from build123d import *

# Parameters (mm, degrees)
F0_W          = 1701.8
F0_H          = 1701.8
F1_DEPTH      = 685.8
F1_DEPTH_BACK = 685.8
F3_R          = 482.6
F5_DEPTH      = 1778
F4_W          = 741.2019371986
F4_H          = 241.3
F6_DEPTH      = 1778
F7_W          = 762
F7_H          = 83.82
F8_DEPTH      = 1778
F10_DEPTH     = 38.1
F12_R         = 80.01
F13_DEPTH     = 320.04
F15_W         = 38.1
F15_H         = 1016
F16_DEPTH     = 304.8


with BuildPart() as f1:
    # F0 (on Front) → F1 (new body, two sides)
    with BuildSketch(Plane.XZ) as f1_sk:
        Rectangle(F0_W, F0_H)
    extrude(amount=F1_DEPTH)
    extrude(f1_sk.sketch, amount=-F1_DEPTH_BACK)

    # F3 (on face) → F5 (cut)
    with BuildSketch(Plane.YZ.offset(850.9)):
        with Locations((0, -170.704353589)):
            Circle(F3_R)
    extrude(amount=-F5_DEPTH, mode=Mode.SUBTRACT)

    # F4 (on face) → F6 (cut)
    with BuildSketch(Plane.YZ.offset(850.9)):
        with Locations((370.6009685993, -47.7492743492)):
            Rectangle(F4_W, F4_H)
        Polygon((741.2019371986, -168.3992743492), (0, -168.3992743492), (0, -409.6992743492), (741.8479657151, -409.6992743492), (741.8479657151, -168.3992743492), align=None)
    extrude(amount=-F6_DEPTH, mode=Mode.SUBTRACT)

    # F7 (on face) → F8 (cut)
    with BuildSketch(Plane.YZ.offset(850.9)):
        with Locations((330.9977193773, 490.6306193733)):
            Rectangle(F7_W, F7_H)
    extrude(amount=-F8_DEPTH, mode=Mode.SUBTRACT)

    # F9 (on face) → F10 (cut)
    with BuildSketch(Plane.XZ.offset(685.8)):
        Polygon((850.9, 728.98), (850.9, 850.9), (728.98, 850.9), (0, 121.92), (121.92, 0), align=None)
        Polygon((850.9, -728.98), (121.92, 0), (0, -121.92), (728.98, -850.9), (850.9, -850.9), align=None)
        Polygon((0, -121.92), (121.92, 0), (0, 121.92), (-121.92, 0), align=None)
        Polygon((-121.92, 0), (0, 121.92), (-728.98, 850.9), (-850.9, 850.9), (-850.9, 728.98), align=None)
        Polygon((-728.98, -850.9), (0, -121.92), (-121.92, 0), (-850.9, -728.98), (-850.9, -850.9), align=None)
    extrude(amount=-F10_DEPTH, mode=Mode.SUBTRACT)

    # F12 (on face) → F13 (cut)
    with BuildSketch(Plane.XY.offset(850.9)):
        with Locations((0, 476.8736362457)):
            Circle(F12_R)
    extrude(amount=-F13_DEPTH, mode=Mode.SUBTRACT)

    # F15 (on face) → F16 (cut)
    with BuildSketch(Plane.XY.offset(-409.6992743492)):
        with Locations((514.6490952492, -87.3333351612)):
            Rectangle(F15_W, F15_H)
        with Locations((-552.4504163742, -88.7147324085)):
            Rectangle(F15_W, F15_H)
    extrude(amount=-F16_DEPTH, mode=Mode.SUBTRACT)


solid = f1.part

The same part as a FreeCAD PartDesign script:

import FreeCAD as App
import Part
import Sketcher
from FreeCAD import Vector
Q = App.Units.Quantity


def add_polygon(sketch, points):
    """Adds a closed chain of lines whose ends are joined by coincident constraints."""
    first, n = sketch.GeometryCount, len(points)
    for a, b in zip(points, points[1:] + points[:1]):
        sketch.addGeometry(Part.LineSegment(App.Vector(*a, 0), App.Vector(*b, 0)), False)
    for i in range(n):
        sketch.addConstraint(Sketcher.Constraint("Coincident", first + i, 2, first + (i + 1) % n, 1))

doc = App.newDocument("Part")
params = doc.addObject("Spreadsheet::Sheet", "Params")
for row, (alias, value) in enumerate([
    ("sketch1_width", "67 in"),
    ("pad1_length", "27 in"),
    ("pad1_length2", "27 in"),
    ("sketch2_diameter", "38 in"),
    ("pocket1_length", "70 in"),
    ("sketch3_height", "19 in"),
    ("pocket2_length", "70 in"),
    ("sketch4_width", "30 in"),
    ("sketch4_height", "3.3 in"),
    ("pocket3_length", "70 in"),
    ("sketch5_width", "4.8 in"),
    ("pocket4_length", "1.5 in"),
    ("sketch6_diameter", "6.3 in"),
    ("pocket5_length", "12.6 in"),
    ("sketch7_height", "40 in"),
    ("sketch7_width", "1.5 in"),
    ("pocket6_length", "12 in"),
], start=1):
    params.set(f"A{row}", alias)
    params.set(f"B{row}", "=" + value)
    params.setAlias(f"B{row}", alias)

body = doc.addObject("PartDesign::Body", "Body")

sketch1 = body.newObject("Sketcher::SketchObject", "Sketch")
sketch1.AttachmentSupport = (doc.getObject("XZ_Plane"), [""])
sketch1.MapMode = "FlatFace"
add_polygon(sketch1, [(-850.9, 850.9), (-850.9, -850.9), (850.9, -850.9), (850.9, 850.9)])
sketch1.addConstraint([
    Sketcher.Constraint("Vertical", 0),
    Sketcher.Constraint("Horizontal", 1),
    Sketcher.Constraint("Vertical", 2),
    Sketcher.Constraint("Horizontal", 3),
    Sketcher.Constraint("Symmetric", 0, 2, 2, 2, -1, 1),
    Sketcher.Constraint("Equal", 3, 0),
    Sketcher.Constraint("DistanceX", 1, 1, 1, 2, Q("67 in")),
])
sketch1.setExpression("Constraints[10]", "Params.sketch1_width")
pad1 = body.newObject("PartDesign::Pad", "Pad")
pad1.Profile = sketch1
pad1.Type = "TwoLengths"
pad1.setExpression("Length", "Params.pad1_length")
pad1.setExpression("Length2", "Params.pad1_length2")

sketch2 = body.newObject("Sketcher::SketchObject", "Sketch001")
sketch2.AttachmentSupport = (doc.getObject("YZ_Plane"), [""])
sketch2.MapMode = "FlatFace"
sketch2.AttachmentOffset = App.Placement(Vector(0, 0, 33.5 * 25.4), App.Rotation())
sketch2.addGeometry(Part.Circle(Vector(0, -170.704354, 0), Vector(0, 0, 1), 482.6), False)
sketch2.addConstraint([
    Sketcher.Constraint("PointOnObject", 0, 3, -2),
    Sketcher.Constraint("Diameter", 0, Q("38 in")),
    Sketcher.Constraint("DistanceY", 0, 3, -1, 1, Q("170.704354 mm")),
])
sketch2.setExpression("Constraints[1]", "Params.sketch2_diameter")
pocket1 = body.newObject("PartDesign::Pocket", "Pocket")
pocket1.Profile = sketch2
pocket1.setExpression("Length", "Params.pocket1_length")

sketch3 = body.newObject("Sketcher::SketchObject", "Sketch002")
sketch3.AttachmentSupport = (doc.getObject("YZ_Plane"), [""])
sketch3.MapMode = "FlatFace"
sketch3.AttachmentOffset = App.Placement(Vector(0, 0, 33.5 * 25.4), App.Rotation())
add_polygon(sketch3, [(0, 72.900726), (0, -409.699274), (741.847966, -409.699274), (741.847966, -168.399274), (741.201937, -168.399274), (741.201937, 72.900726)])
sketch3.addConstraint([
    Sketcher.Constraint("Vertical", 0),
    Sketcher.Constraint("Horizontal", 1),
    Sketcher.Constraint("Vertical", 2),
    Sketcher.Constraint("Horizontal", 3),
    Sketcher.Constraint("Vertical", 4),
    Sketcher.Constraint("Horizontal", 5),
    Sketcher.Constraint("PointOnObject", 0, 2, -2),
    Sketcher.Constraint("Equal", 2, 4),
    Sketcher.Constraint("DistanceY", 0, 2, 0, 1, Q("19 in")),
    Sketcher.Constraint("DistanceX", 3, 2, 3, 1, Q("0.646029 mm")),
    Sketcher.Constraint("DistanceX", 1, 1, 1, 2, Q("741.847966 mm")),
    Sketcher.Constraint("DistanceY", 0, 2, -1, 1, Q("409.699274 mm")),
])
sketch3.setExpression("Constraints[14]", "Params.sketch3_height")
pocket2 = body.newObject("PartDesign::Pocket", "Pocket001")
pocket2.Profile = sketch3
pocket2.setExpression("Length", "Params.pocket2_length")

sketch4 = body.newObject("Sketcher::SketchObject", "Sketch003")
sketch4.AttachmentSupport = (doc.getObject("YZ_Plane"), [""])
sketch4.MapMode = "FlatFace"
sketch4.AttachmentOffset = App.Placement(Vector(0, 0, 33.5 * 25.4), App.Rotation())
add_polygon(sketch4, [(-50.002281, 532.540619), (-50.002281, 448.720619), (711.997719, 448.720619), (711.997719, 532.540619)])
sketch4.addConstraint([
    Sketcher.Constraint("Vertical", 0),
    Sketcher.Constraint("Horizontal", 1),
    Sketcher.Constraint("Vertical", 2),
    Sketcher.Constraint("Horizontal", 3),
    Sketcher.Constraint("DistanceX", 1, 1, 1, 2, Q("30 in")),
    Sketcher.Constraint("DistanceY", 0, 2, 0, 1, Q("3.3 in")),
    Sketcher.Constraint("DistanceX", 0, 2, -1, 1, Q("50.002281 mm")),
    Sketcher.Constraint("DistanceY", -1, 1, 0, 2, Q("448.720619 mm")),
])
sketch4.setExpression("Constraints[8]", "Params.sketch4_width")
sketch4.setExpression("Constraints[9]", "Params.sketch4_height")
pocket3 = body.newObject("PartDesign::Pocket", "Pocket002")
pocket3.Profile = sketch4
pocket3.setExpression("Length", "Params.pocket3_length")

sketch5 = body.newObject("Sketcher::SketchObject", "Sketch004")
sketch5.AttachmentSupport = (doc.getObject("XZ_Plane"), [""])
sketch5.MapMode = "FlatFace"
sketch5.AttachmentOffset = App.Placement(Vector(0, 0, 27 * 25.4), App.Rotation())
add_polygon(sketch5, [(850.9, 728.98), (850.9, 850.9), (728.98, 850.9), (0, 121.92), (-728.98, 850.9), (-850.9, 850.9), (-850.9, 728.98), (-121.92, 0), (-850.9, -728.98), (-850.9, -850.9), (-728.98, -850.9), (0, -121.92), (728.98, -850.9), (850.9, -850.9), (850.9, -728.98), (121.92, 0)])
sketch5.addConstraint([
    Sketcher.Constraint("Vertical", 0),
    Sketcher.Constraint("Horizontal", 1),
    Sketcher.Constraint("Horizontal", 4),
    Sketcher.Constraint("Vertical", 5),
    Sketcher.Constraint("Vertical", 8),
    Sketcher.Constraint("Horizontal", 9),
    Sketcher.Constraint("Horizontal", 12),
    Sketcher.Constraint("Vertical", 13),
    Sketcher.Constraint("Symmetric", 0, 2, 8, 2, -1, 1),
    Sketcher.Constraint("Symmetric", 2, 2, 10, 2, -1, 1),
    Sketcher.Constraint("Symmetric", 3, 2, 11, 2, -1, 1),
    Sketcher.Constraint("Symmetric", 5, 2, 13, 2, -1, 1),
    Sketcher.Constraint("Symmetric", 6, 2, 14, 2, -1, 1),
    Sketcher.Constraint("Symmetric", 1, 2, 3, 2, -2),
    Sketcher.Constraint("Symmetric", 7, 2, 13, 2, -2),
    Sketcher.Constraint("PointOnObject", 2, 2, -2),
    Sketcher.Constraint("PointOnObject", 6, 2, -1),
    Sketcher.Constraint("Perpendicular", 2, 3),
    Sketcher.Constraint("Parallel", 3, 6),
    Sketcher.Constraint("Parallel", 7, 10),
    Sketcher.Constraint("Perpendicular", 14, 15),
    Sketcher.Constraint("Equal", 12, 0),
    Sketcher.Constraint("Equal", 3, 6),
    Sketcher.Constraint("DistanceX", 1, 2, 1, 1, Q("4.8 in")),
    Sketcher.Constraint("DistanceX", 4, 2, 0, 2, Q("67 in")),
])
sketch5.setExpression("Constraints[39]", "Params.sketch5_width")
pocket4 = body.newObject("PartDesign::Pocket", "Pocket003")
pocket4.Profile = sketch5
pocket4.setExpression("Length", "Params.pocket4_length")

sketch6 = body.newObject("Sketcher::SketchObject", "Sketch005")
sketch6.AttachmentSupport = (doc.getObject("XY_Plane"), [""])
sketch6.MapMode = "FlatFace"
sketch6.AttachmentOffset = App.Placement(Vector(0, 0, 33.5 * 25.4), App.Rotation())
sketch6.addGeometry(Part.Circle(Vector(0, 476.873636, 0), Vector(0, 0, 1), 80.01), False)
sketch6.addConstraint([
    Sketcher.Constraint("PointOnObject", 0, 3, -2),
    Sketcher.Constraint("Diameter", 0, Q("6.3 in")),
    Sketcher.Constraint("DistanceY", -1, 1, 0, 3, Q("476.873636 mm")),
])
sketch6.setExpression("Constraints[1]", "Params.sketch6_diameter")
pocket5 = body.newObject("PartDesign::Pocket", "Pocket004")
pocket5.Profile = sketch6
pocket5.setExpression("Length", "Params.pocket5_length")

sketch7 = body.newObject("Sketcher::SketchObject", "Sketch006")
sketch7.AttachmentSupport = (doc.getObject("XY_Plane"), [""])
sketch7.MapMode = "FlatFace"
sketch7.AttachmentOffset = App.Placement(Vector(0, 0, -409.699274), App.Rotation())
add_polygon(sketch7, [(495.599095, 420.666665), (495.599095, -595.333335), (533.699095, -595.333335), (533.699095, 420.666665)])
add_polygon(sketch7, [(-571.500416, 419.285268), (-571.500416, -596.714732), (-533.400416, -596.714732), (-533.400416, 419.285268)])
sketch7.addConstraint([
    Sketcher.Constraint("Vertical", 0),
    Sketcher.Constraint("Horizontal", 1),
    Sketcher.Constraint("Vertical", 2),
    Sketcher.Constraint("Horizontal", 3),
    Sketcher.Constraint("Vertical", 4),
    Sketcher.Constraint("Horizontal", 5),
    Sketcher.Constraint("Vertical", 6),
    Sketcher.Constraint("Horizontal", 7),
    Sketcher.Constraint("Equal", 3, 5),
    Sketcher.Constraint("Equal", 2, 4),
    Sketcher.Constraint("DistanceY", 0, 2, 0, 1, Q("40 in")),
    Sketcher.Constraint("DistanceX", 1, 1, 1, 2, Q("1.5 in")),
    Sketcher.Constraint("DistanceX", 4, 2, 0, 2, Q("1067.099512 mm")),
    Sketcher.Constraint("DistanceX", -1, 1, 0, 2, Q("495.599095 mm")),
    Sketcher.Constraint("DistanceY", 0, 2, -1, 1, Q("595.333335 mm")),
    Sketcher.Constraint("DistanceY", 4, 2, -1, 1, Q("596.714732 mm")),
])
sketch7.setExpression("Constraints[18]", "Params.sketch7_height")
sketch7.setExpression("Constraints[19]", "Params.sketch7_width")
pocket6 = body.newObject("PartDesign::Pocket", "Pocket005")
pocket6.Profile = sketch7
pocket6.setExpression("Length", "Params.pocket6_length")

doc.recompute()
